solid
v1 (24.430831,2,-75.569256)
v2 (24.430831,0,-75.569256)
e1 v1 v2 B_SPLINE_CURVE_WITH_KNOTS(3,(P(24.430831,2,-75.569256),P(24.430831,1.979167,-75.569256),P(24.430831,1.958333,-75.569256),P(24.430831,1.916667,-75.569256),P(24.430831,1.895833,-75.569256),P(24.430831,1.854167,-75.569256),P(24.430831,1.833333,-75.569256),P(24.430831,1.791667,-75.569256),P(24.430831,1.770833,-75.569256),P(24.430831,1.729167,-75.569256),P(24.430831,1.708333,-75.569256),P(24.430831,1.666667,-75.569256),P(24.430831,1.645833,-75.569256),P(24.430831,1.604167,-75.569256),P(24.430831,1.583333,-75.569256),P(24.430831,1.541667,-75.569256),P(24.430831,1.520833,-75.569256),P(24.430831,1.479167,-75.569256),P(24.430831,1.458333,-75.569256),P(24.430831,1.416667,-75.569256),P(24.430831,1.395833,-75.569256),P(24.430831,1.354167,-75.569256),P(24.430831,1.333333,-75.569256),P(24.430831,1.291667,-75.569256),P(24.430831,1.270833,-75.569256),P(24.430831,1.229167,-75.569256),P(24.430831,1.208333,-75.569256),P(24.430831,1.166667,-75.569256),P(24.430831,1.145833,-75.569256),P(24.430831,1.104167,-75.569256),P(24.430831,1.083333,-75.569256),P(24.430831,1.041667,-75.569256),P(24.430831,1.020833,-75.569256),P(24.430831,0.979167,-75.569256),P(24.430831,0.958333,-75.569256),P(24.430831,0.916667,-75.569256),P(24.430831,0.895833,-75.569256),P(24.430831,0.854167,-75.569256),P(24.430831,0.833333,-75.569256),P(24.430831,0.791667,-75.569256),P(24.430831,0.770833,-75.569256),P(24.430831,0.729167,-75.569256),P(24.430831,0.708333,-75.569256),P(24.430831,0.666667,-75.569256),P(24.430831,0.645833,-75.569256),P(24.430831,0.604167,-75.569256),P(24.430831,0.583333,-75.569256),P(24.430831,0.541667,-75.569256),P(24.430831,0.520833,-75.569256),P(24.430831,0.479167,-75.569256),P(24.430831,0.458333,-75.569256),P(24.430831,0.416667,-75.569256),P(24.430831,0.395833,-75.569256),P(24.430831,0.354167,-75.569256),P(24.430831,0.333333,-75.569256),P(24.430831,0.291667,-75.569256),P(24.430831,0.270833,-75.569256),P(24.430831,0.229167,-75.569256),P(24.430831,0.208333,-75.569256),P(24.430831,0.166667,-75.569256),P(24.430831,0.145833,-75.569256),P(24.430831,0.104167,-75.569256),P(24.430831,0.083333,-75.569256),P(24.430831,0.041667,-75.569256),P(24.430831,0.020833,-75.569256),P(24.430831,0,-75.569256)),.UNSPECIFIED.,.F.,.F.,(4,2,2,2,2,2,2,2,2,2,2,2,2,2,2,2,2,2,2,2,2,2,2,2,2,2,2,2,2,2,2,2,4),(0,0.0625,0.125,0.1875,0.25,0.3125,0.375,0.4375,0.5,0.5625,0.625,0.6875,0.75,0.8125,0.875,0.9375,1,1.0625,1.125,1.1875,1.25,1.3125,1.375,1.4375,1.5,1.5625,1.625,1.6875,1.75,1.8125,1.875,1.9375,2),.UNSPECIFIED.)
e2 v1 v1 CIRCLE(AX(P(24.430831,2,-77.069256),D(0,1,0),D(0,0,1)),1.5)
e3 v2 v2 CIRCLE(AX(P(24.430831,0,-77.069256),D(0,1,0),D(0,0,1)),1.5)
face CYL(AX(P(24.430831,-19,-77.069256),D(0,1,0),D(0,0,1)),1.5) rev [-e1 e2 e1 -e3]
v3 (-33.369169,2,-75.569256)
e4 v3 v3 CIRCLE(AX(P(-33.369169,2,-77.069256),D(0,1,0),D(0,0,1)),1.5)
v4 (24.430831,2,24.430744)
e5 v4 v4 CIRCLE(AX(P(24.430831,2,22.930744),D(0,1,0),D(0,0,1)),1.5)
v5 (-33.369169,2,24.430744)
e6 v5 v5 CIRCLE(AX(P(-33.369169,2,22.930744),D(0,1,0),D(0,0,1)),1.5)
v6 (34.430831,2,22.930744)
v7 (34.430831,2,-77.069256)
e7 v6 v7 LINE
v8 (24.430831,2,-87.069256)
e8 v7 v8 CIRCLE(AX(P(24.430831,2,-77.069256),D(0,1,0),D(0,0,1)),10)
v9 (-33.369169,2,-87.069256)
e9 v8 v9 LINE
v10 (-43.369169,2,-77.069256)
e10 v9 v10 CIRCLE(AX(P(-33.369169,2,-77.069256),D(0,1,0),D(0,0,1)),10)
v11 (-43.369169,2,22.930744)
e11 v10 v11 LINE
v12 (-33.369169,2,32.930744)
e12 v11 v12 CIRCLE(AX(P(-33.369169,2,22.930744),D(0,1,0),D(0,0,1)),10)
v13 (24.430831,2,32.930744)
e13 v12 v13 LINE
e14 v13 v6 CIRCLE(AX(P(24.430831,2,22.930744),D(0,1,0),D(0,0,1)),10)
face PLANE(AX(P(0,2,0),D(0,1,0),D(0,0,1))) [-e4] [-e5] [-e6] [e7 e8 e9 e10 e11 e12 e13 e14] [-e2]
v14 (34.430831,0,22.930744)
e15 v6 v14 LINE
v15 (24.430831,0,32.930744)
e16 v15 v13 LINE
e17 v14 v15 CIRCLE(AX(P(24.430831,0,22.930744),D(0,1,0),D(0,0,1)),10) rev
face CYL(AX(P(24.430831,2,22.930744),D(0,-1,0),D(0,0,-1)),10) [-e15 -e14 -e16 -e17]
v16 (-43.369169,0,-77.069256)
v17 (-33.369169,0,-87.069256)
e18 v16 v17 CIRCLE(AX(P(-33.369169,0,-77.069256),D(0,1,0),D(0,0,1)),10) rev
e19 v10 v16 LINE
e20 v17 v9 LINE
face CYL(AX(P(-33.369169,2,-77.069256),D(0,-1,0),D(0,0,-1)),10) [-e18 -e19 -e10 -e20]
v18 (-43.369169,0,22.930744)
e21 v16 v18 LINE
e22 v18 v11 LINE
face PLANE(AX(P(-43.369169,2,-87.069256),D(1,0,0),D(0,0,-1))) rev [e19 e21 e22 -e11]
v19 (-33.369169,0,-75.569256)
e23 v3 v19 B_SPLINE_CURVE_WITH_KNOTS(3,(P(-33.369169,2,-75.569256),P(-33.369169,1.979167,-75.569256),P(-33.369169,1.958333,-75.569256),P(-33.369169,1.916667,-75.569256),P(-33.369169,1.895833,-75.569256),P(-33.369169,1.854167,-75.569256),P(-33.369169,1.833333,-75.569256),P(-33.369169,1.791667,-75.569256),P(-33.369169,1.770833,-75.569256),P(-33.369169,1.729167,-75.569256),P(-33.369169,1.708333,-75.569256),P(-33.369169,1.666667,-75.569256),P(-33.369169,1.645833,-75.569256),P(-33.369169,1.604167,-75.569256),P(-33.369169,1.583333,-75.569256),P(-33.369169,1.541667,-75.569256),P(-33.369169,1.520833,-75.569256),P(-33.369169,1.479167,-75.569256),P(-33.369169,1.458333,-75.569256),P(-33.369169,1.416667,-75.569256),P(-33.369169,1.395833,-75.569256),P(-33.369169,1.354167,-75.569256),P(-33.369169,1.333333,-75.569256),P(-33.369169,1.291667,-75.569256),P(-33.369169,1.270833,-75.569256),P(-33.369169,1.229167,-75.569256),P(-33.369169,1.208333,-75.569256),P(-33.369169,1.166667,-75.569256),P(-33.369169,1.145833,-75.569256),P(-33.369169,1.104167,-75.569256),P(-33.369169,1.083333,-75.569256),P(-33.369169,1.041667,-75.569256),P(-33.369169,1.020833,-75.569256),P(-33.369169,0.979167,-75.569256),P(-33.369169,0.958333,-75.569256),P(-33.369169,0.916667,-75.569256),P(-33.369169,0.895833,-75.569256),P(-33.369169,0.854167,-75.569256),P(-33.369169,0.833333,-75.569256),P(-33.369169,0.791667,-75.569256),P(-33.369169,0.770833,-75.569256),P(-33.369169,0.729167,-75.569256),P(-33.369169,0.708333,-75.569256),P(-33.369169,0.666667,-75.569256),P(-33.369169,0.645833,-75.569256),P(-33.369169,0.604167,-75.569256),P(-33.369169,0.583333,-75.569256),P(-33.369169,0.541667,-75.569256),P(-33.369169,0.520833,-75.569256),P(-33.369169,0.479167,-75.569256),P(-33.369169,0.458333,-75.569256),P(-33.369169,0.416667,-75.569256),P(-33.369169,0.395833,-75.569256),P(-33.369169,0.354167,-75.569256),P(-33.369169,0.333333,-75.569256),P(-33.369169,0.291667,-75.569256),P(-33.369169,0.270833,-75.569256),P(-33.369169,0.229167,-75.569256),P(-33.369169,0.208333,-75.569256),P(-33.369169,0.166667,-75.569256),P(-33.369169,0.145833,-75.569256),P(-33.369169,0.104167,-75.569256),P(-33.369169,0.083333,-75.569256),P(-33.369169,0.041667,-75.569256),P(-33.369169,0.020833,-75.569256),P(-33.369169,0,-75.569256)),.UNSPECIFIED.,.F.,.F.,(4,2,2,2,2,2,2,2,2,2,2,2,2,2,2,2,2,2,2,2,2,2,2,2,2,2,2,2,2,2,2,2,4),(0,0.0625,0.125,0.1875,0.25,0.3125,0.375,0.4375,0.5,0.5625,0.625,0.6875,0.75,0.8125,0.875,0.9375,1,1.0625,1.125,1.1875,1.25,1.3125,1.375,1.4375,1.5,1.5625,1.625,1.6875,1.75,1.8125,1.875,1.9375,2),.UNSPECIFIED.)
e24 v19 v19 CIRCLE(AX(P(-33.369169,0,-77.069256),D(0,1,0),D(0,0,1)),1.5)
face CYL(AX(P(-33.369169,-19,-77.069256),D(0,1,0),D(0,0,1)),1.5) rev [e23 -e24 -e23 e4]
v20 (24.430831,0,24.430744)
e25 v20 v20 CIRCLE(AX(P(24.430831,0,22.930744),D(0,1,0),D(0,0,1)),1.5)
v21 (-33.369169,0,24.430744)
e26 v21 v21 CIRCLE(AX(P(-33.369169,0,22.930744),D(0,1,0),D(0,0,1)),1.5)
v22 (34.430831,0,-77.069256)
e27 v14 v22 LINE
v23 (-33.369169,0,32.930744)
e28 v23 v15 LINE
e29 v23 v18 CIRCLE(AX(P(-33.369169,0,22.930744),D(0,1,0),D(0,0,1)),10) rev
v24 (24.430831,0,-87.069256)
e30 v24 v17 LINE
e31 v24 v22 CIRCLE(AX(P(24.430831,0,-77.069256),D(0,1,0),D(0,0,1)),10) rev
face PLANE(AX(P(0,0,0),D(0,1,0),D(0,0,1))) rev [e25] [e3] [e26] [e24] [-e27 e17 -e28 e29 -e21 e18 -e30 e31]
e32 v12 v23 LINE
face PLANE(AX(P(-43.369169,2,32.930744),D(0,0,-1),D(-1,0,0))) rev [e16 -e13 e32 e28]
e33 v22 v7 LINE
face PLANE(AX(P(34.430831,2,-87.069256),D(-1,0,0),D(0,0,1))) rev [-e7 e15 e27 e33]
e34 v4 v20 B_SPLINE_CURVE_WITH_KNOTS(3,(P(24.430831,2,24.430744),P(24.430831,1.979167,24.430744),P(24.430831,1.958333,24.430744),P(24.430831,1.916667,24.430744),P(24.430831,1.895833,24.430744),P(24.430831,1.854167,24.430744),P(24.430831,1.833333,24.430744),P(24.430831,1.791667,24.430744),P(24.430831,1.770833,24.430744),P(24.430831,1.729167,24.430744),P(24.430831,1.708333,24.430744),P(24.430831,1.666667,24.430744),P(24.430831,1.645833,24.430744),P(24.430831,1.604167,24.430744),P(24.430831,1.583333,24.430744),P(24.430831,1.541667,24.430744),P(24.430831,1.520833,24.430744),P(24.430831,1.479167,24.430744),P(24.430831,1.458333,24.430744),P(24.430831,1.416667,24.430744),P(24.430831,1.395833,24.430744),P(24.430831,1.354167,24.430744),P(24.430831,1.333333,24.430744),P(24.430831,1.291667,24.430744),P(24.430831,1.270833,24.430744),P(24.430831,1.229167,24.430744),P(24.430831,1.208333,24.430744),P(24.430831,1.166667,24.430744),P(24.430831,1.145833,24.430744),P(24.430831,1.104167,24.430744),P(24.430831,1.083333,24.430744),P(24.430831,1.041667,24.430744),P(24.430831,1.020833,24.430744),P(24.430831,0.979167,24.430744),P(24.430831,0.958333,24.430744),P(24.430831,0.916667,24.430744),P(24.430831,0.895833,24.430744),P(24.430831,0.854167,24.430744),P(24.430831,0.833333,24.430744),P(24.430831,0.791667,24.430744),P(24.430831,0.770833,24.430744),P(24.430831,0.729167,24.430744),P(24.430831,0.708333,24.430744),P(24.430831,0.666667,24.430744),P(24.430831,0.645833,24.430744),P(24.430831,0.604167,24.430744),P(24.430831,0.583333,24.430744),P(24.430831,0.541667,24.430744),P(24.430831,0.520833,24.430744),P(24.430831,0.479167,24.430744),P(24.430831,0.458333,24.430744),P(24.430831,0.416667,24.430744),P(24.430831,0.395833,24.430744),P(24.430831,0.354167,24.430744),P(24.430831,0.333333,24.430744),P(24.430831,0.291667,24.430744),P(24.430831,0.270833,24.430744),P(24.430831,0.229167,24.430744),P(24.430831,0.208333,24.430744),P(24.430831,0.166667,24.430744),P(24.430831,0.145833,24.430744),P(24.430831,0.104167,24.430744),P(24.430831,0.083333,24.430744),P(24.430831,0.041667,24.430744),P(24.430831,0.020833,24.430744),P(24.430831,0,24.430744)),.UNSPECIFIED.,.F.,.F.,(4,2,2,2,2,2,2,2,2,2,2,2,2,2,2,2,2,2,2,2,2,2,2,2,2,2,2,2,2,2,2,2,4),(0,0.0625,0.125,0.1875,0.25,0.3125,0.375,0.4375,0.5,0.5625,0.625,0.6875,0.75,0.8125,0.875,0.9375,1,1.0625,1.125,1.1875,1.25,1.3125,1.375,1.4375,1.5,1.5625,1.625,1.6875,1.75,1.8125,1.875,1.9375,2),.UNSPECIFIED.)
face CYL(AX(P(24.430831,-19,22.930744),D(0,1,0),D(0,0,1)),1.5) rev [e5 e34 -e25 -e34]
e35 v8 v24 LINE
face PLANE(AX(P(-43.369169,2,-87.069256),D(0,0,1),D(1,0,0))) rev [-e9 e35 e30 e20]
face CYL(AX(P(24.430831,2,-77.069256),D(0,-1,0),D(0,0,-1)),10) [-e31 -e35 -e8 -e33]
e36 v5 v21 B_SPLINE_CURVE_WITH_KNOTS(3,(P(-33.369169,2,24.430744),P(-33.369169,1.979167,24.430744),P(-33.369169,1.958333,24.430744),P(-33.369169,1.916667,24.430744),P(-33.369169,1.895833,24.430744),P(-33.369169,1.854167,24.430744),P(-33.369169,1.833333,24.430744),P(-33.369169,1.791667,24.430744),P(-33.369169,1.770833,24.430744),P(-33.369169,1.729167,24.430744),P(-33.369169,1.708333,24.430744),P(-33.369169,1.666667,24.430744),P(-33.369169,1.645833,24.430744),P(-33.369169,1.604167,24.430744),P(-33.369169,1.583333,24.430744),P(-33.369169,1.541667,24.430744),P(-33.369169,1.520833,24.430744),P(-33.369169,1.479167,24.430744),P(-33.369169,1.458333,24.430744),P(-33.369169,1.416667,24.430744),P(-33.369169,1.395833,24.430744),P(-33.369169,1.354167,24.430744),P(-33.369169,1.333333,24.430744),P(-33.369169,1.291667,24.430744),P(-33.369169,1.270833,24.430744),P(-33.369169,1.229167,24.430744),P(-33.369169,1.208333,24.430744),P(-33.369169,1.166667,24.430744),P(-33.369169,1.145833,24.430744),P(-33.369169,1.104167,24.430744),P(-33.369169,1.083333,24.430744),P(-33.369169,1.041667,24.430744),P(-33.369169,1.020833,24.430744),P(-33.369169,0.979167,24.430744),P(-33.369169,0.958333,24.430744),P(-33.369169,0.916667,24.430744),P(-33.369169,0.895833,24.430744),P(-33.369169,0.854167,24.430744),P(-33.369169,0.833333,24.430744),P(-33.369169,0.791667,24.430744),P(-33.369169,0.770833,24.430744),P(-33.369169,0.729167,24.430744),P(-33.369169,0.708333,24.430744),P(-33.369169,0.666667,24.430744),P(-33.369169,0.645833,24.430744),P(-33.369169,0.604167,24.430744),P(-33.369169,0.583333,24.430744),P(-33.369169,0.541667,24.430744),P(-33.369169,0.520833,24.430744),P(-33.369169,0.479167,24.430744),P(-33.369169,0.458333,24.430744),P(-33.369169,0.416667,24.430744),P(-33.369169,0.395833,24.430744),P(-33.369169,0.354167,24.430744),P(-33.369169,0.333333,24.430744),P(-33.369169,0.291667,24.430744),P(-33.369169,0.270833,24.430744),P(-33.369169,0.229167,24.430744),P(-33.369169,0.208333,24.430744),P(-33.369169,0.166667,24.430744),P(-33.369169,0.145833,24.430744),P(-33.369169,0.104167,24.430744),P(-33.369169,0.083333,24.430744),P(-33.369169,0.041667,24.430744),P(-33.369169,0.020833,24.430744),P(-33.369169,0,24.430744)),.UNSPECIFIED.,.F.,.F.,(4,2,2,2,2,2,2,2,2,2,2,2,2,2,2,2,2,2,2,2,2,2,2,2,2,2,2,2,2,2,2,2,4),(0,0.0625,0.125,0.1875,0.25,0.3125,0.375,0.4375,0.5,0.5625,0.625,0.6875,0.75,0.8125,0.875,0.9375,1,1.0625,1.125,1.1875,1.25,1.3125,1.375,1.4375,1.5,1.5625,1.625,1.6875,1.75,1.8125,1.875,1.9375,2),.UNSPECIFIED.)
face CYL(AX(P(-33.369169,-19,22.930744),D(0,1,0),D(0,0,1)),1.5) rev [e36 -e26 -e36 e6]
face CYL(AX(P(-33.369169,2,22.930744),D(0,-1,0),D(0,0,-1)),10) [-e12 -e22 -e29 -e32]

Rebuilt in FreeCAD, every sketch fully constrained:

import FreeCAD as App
import Part
import Sketcher

V = App.Vector


def edges_at(feature, points):
    """Names of the edges that pass closest to the given points."""
    edges = feature.Shape.Edges
    near = lambda p: min(range(len(edges)), key=lambda i: edges[i].distToShape(Part.Vertex(*p))[0])
    return sorted({f"Edge{near(p) + 1}" for p in points})


def add_polygon(sketch, points):
    """Adds a closed chain of lines whose ends are joined by coincident constraints."""
    first, n = sketch.GeometryCount, len(points)
    for a, b in zip(points, points[1:] + points[:1]):
        sketch.addGeometry(Part.LineSegment(App.Vector(*a, 0), App.Vector(*b, 0)), False)
    for i in range(n):
        sketch.addConstraint(Sketcher.Constraint("Coincident", first + i, 2, first + (i + 1) % n, 1))

doc = App.newDocument("Part")
body = doc.addObject("PartDesign::Body", "Body")

# Sketch on XZ plane
sketch1 = body.newObject("Sketcher::SketchObject", "Sketch")
sketch1.AttachmentSupport = (doc.getObject("XZ_Plane"), [""])
sketch1.MapMode = "FlatFace"
add_polygon(sketch1, [(-43.369169, -87.069256), (-43.369169, 32.930744), (34.430831, 32.930744), (34.430831, -87.069256)])  # lines 0-3
sketch1.addConstraint(Sketcher.Constraint("Vertical", 0))
sketch1.addConstraint(Sketcher.Constraint("Horizontal", 1))
sketch1.addConstraint(Sketcher.Constraint("Vertical", 2))
sketch1.addConstraint(Sketcher.Constraint("Horizontal", 3))
sketch1.addConstraint(Sketcher.Constraint("DistanceY", 0, 1, 0, 2, 120.0))
sketch1.addConstraint(Sketcher.Constraint("DistanceX", 1, 1, 1, 2, 77.8))
sketch1.addConstraint(Sketcher.Constraint("DistanceX", 0, 2, -1, 1, 43.369169))
sketch1.addConstraint(Sketcher.Constraint("DistanceY", -1, 1, 0, 2, 32.930744))
pad1 = body.newObject("PartDesign::Pad", "Pad")
pad1.Profile = sketch1
pad1.Length = 2
pad1.Reversed = True
doc.recompute()

fillet = body.newObject("PartDesign::Fillet", "Fillet")
fillet.Base = (pad1, edges_at(pad1, [
    (-43.369, 1, -87.069),
    (34.431, 1, -87.069),
    (34.431, 1, 32.931),
    (-43.369, 1, 32.931),
]))
fillet.Radius = 10

# Sketch on XZ plane
sketch2 = body.newObject("Sketcher::SketchObject", "Sketch001")
sketch2.AttachmentSupport = (doc.getObject("XZ_Plane"), [""])
sketch2.MapMode = "FlatFace"
sketch2.AttachmentOffset = App.Placement(V(0, 0, -2), App.Rotation())
sketch2.addGeometry(Part.Circle(V(-33.369169, 22.930744, 0), V(0, 0, 1), 1.5), False)
sketch2.addGeometry(Part.Circle(V(24.430831, 22.930744, 0), V(0, 0, 1), 1.5), False)
sketch2.addGeometry(Part.Circle(V(-33.369169, -77.069256, 0), V(0, 0, 1), 1.5), False)
sketch2.addGeometry(Part.Circle(V(24.430831, -77.069256, 0), V(0, 0, 1), 1.5), False)
sketch2.addConstraint(Sketcher.Constraint("Equal", 0, 1))
sketch2.addConstraint(Sketcher.Constraint("Equal", 1, 2))
sketch2.addConstraint(Sketcher.Constraint("Equal", 2, 3))
sketch2.addConstraint(Sketcher.Constraint("Horizontal", 0, 3, 1, 3))
sketch2.addConstraint(Sketcher.Constraint("Horizontal", 2, 3, 3, 3))
sketch2.addConstraint(Sketcher.Constraint("Vertical", 0, 3, 2, 3))
sketch2.addConstraint(Sketcher.Constraint("Vertical", 1, 3, 3, 3))
sketch2.addConstraint(Sketcher.Constraint("Diameter", 0, 3.0))
sketch2.addConstraint(Sketcher.Constraint("DistanceY", 2, 3, 0, 3, 100.0))
sketch2.addConstraint(Sketcher.Constraint("DistanceX", 0, 3, 1, 3, 57.8))
sketch2.addConstraint(Sketcher.Constraint("DistanceX", 0, 3, -1, 1, 33.369169))
sketch2.addConstraint(Sketcher.Constraint("DistanceY", -1, 1, 0, 3, 22.930744))
pocket1 = body.newObject("PartDesign::Pocket", "Pocket")
pocket1.Profile = sketch2
pocket1.Length = 21
pocket1.Reversed = True

doc.recompute()
